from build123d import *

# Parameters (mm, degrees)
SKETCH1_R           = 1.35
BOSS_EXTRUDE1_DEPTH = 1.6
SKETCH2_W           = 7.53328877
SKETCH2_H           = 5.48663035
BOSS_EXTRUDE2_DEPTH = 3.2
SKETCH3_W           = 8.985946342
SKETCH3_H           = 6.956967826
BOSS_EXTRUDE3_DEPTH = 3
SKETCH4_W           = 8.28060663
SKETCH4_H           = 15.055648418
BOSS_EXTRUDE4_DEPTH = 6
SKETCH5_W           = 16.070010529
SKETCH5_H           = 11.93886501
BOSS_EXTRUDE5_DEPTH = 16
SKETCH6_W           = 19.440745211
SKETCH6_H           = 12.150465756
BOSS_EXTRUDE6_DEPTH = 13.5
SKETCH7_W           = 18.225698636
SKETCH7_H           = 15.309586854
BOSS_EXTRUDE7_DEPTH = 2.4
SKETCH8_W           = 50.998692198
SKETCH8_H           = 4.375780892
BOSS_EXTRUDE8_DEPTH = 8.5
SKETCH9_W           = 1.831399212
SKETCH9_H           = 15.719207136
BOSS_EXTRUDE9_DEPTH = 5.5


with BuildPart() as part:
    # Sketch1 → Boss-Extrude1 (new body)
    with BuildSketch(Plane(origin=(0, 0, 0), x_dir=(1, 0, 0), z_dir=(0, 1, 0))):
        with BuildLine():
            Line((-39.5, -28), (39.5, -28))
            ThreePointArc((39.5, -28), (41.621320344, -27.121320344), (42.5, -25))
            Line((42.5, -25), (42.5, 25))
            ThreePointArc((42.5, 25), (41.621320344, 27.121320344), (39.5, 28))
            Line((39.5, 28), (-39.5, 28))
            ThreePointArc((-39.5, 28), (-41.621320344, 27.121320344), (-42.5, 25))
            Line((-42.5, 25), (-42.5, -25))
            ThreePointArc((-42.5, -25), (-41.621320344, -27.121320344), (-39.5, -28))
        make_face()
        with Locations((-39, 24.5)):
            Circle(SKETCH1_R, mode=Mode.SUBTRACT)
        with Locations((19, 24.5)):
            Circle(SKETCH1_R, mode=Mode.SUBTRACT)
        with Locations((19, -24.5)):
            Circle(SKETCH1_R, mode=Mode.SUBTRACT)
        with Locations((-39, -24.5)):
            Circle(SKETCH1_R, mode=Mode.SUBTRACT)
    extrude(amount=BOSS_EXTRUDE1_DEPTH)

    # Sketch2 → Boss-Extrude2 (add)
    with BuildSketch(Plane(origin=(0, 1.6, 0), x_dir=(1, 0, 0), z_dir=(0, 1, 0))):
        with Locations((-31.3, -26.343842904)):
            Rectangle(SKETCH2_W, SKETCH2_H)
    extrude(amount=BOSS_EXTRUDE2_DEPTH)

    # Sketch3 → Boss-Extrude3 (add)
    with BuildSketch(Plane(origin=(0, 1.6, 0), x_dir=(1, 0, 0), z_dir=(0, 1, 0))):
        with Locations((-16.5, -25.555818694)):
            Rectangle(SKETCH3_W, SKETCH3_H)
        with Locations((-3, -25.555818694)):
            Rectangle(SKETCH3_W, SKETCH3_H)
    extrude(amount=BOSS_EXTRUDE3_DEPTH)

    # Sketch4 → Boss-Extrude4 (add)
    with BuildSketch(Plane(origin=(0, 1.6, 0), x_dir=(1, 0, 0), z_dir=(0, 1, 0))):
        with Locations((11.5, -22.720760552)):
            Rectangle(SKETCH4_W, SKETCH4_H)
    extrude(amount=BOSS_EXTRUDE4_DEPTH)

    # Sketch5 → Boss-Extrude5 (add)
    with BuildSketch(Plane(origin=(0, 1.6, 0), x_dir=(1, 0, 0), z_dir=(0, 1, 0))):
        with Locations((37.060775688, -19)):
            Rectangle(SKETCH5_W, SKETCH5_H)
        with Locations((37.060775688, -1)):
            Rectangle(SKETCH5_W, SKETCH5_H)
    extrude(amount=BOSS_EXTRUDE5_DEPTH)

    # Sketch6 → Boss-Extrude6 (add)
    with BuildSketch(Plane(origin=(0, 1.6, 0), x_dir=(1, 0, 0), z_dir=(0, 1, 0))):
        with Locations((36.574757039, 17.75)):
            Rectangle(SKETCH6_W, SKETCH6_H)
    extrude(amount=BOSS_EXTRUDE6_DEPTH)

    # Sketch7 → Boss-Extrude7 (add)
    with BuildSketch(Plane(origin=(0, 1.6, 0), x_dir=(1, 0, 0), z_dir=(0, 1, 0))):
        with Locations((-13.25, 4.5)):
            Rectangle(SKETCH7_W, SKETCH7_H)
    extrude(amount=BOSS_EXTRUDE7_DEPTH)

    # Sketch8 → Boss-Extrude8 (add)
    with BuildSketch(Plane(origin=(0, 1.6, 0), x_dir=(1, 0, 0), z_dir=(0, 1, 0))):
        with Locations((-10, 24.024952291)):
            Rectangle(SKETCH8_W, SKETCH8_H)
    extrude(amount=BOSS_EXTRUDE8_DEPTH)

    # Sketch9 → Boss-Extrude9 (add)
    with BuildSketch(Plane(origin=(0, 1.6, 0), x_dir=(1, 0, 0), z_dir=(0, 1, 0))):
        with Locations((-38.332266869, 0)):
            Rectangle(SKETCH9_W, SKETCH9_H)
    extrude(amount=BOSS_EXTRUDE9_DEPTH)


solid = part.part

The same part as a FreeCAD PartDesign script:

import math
import FreeCAD as App
import Part
import Sketcher

V = App.Vector

doc = App.newDocument("Part")
params = doc.addObject("Spreadsheet::Sheet", "Params")
for row, (alias, value) in enumerate([
    ("sketch1_radius", "3 mm"),
    ("sketch1_diameter", "2.7 mm"),
    ("sketch1_width", "79 mm"),
    ("sketch1_height", "50 mm"),
    ("pad1_length", "1.6 mm"),
    ("pad2_length", "3.2 mm"),
    ("pad3_length", "3 mm"),
    ("pad4_length", "6 mm"),
    ("pad5_length", "16 mm"),
    ("pad6_length", "13.5 mm"),
    ("pad7_length", "2.4 mm"),
    ("pad8_length", "8.5 mm"),
    ("pad9_length", "5.5 mm"),
], start=1):
    params.set(f"A{row}", alias)
    params.set(f"B{row}", "=" + value)
    params.setAlias(f"B{row}", alias)

body = doc.addObject("PartDesign::Body", "Body")

# Sketch on XZ plane
sketch1 = doc.addObject("Sketcher::SketchObject", "Sketch")
body.addObject(sketch1)
sketch1.AttachmentSupport = (doc.XZ_Plane, [""])
sketch1.MapMode = "FlatFace"
sketch1.addGeometry([
    Part.LineSegment(V(-39.5, 28, 0), V(39.5, 28, 0)),  # 0
    Part.ArcOfCircle(Part.Circle(V(39.5, 25, 0), V(0, 0, 1), 3), math.radians(0), math.radians(90)),  # 1
    Part.LineSegment(V(42.5, 25, 0), V(42.5, -25, 0)),  # 2
    Part.ArcOfCircle(Part.Circle(V(39.5, -25, 0), V(0, 0, 1), 3), math.radians(-90), math.radians(0)),  # 3
    Part.LineSegment(V(39.5, -28, 0), V(-39.5, -28, 0)),  # 4
    Part.ArcOfCircle(Part.Circle(V(-39.5, -25, 0), V(0, 0, 1), 3), math.radians(180), math.radians(270)),  # 5
    Part.LineSegment(V(-42.5, -25, 0), V(-42.5, 25, 0)),  # 6
    Part.ArcOfCircle(Part.Circle(V(-39.5, 25, 0), V(0, 0, 1), 3), math.radians(90), math.radians(180)),  # 7
    Part.Circle(V(-39, 24.5, 0), V(0, 0, 1), 1.4),  # 8
    Part.Circle(V(19, 24.5, 0), V(0, 0, 1), 1.4),  # 9
    Part.Circle(V(-39, -24.5, 0), V(0, 0, 1), 1.4),  # 10
    Part.Circle(V(19, -24.5, 0), V(0, 0, 1), 1.4),  # 11
], False)
sketch1.addConstraint([
    Sketcher.Constraint("Tangent", 0, 2, 1, 2),
    Sketcher.Constraint("Tangent", 1, 1, 2, 1),
    Sketcher.Constraint("Tangent", 2, 2, 3, 2),
    Sketcher.Constraint("Tangent", 3, 1, 4, 1),
    Sketcher.Constraint("Tangent", 4, 2, 5, 2),
    Sketcher.Constraint("Tangent", 5, 1, 6, 1),
    Sketcher.Constraint("Tangent", 6, 2, 7, 2),
    Sketcher.Constraint("Tangent", 7, 1, 0, 1),
    Sketcher.Constraint("Horizontal", 0),
    Sketcher.Constraint("Vertical", 2),
    Sketcher.Constraint("Horizontal", 4),
    Sketcher.Constraint("Vertical", 6),
    Sketcher.Constraint("Equal", 1, 3),
    Sketcher.Constraint("Equal", 3, 5),
    Sketcher.Constraint("Equal", 5, 7),
    Sketcher.Constraint("Equal", 8, 9),
    Sketcher.Constraint("Equal", 9, 10),
    Sketcher.Constraint("Equal", 10, 11),
    Sketcher.Constraint("Symmetric", 1, 3, 5, 3, -1, 1),
    Sketcher.Constraint("Symmetric", 8, 3, 10, 3, -1),
    Sketcher.Constraint("Symmetric", 9, 3, 11, 3, -1),
    Sketcher.Constraint("Horizontal", 8, 3, 9, 3),
    Sketcher.Constraint("Radius", 1, 3.0),
    Sketcher.Constraint("Diameter", 8, 2.7),
    Sketcher.Constraint("DistanceX", 0, 1, 0, 2, 79.0),
    Sketcher.Constraint("DistanceY", 2, 2, 2, 1, 50.0),
    Sketcher.Constraint("DistanceX", 8, 3, -1, 1, 39.0),
    Sketcher.Constraint("DistanceX", -1, 1, 9, 3, 19.0),
    Sketcher.Constraint("DistanceY", 10, 3, 8, 3, 49.0),
])
sketch1.setExpression("Constraints[22]", "Params.sketch1_radius")
sketch1.setExpression("Constraints[23]", "Params.sketch1_diameter")
sketch1.setExpression("Constraints[24]", "Params.sketch1_width")
sketch1.setExpression("Constraints[25]", "Params.sketch1_height")
pad1 = doc.addObject("PartDesign::Pad", "Pad")
body.addObject(pad1)
pad1.Profile = sketch1
pad1.setExpression("Length", "Params.pad1_length")
pad1.Reversed = True

# Sketch on XZ plane
sketch2 = doc.addObject("Sketcher::SketchObject", "Sketch001")
body.addObject(sketch2)
sketch2.AttachmentSupport = (doc.XZ_Plane, [""])
sketch2.MapMode = "FlatFace"
sketch2.AttachmentOffset = App.Placement(V(0, 0, -1.6), App.Rotation())
sketch2.addGeometry([
    Part.LineSegment(V(-35, 24, 0), V(-35, 29, 0)),
    Part.LineSegment(V(-35, 29, 0), V(-28, 29, 0)),
    Part.LineSegment(V(-28, 29, 0), V(-28, 24, 0)),
    Part.LineSegment(V(-28, 24, 0), V(-35, 24, 0)),
], False)
sketch2.addConstraint([
    Sketcher.Constraint("Coincident", 0, 2, 1, 1),
    Sketcher.Constraint("Coincident", 1, 2, 2, 1),
    Sketcher.Constraint("Coincident", 2, 2, 3, 1),
    Sketcher.Constraint("Coincident", 3, 2, 0, 1),
    Sketcher.Constraint("Vertical", 0),
    Sketcher.Constraint("Horizontal", 1),
    Sketcher.Constraint("Vertical", 2),
    Sketcher.Constraint("Horizontal", 3),
    Sketcher.Constraint("DistanceX", 1, 1, 1, 2, 7.533289),
    Sketcher.Constraint("DistanceY", 0, 1, 0, 2, 5.48663),
    Sketcher.Constraint("DistanceY", -1, 1, 0, 2, 29.087158),
    Sketcher.Constraint("DistanceX", 0, 2, -1, 1, 35.066644),
])
pad2 = doc.addObject("PartDesign::Pad", "Pad001")
body.addObject(pad2)
pad2.Profile = sketch2
pad2.setExpression("Length", "Params.pad2_length")
pad2.Reversed = True

# Sketch on XZ plane
sketch3 = doc.addObject("Sketcher::SketchObject", "Sketch002")
body.addObject(sketch3)
sketch3.AttachmentSupport = (doc.XZ_Plane, [""])
sketch3.MapMode = "FlatFace"
sketch3.AttachmentOffset = App.Placement(V(0, 0, -1.6), App.Rotation())
sketch3.addGeometry([
    Part.LineSegment(V(-21, 22, 0), V(-21, 29, 0)),  # 0
    Part.LineSegment(V(-21, 29, 0), V(-12, 29, 0)),  # 1
    Part.LineSegment(V(-12, 29, 0), V(-12, 22, 0)),  # 2
    Part.LineSegment(V(-12, 22, 0), V(-21, 22, 0)),  # 3
    Part.LineSegment(V(-7, 22, 0), V(-7, 29, 0)),  # 4
    Part.LineSegment(V(-7, 29, 0), V(1, 29, 0)),  # 5
    Part.LineSegment(V(1, 29, 0), V(1, 22, 0)),  # 6
    Part.LineSegment(V(1, 22, 0), V(-7, 22, 0)),  # 7
], False)
sketch3.addConstraint([
    Sketcher.Constraint("Coincident", 0, 2, 1, 1),
    Sketcher.Constraint("Coincident", 1, 2, 2, 1),
    Sketcher.Constraint("Coincident", 2, 2, 3, 1),
    Sketcher.Constraint("Coincident", 3, 2, 0, 1),
    Sketcher.Constraint("Coincident", 4, 2, 5, 1),
    Sketcher.Constraint("Coincident", 5, 2, 6, 1),
    Sketcher.Constraint("Coincident", 6, 2, 7, 1),
    Sketcher.Constraint("Coincident", 7, 2, 4, 1),
    Sketcher.Constraint("Vertical", 0),
    Sketcher.Constraint("Horizontal", 1),
    Sketcher.Constraint("Vertical", 2),
    Sketcher.Constraint("Horizontal", 3),
    Sketcher.Constraint("Vertical", 4),
    Sketcher.Constraint("Horizontal", 5),
    Sketcher.Constraint("Vertical", 6),
    Sketcher.Constraint("Horizontal", 7),
    Sketcher.Constraint("Horizontal", 1, 2, 4, 2),
    Sketcher.Constraint("Horizontal", 3, 2, 6, 2),
    Sketcher.Constraint("Equal", 3, 5),
    Sketcher.Constraint("DistanceX", 0, 2, 4, 2, 13.5),
    Sketcher.Constraint("DistanceX", 1, 1, 1, 2, 8.985946),
    Sketcher.Constraint("DistanceY", 0, 1, 0, 2, 6.956968),
    Sketcher.Constraint("DistanceX", 0, 2, -1, 1, 20.992973),
    Sketcher.Constraint("DistanceY", -1, 1, 0, 2, 29.034303),
])
pad3 = doc.addObject("PartDesign::Pad", "Pad002")
body.addObject(pad3)
pad3.Profile = sketch3
pad3.setExpression("Length", "Params.pad3_length")
pad3.Reversed = True

# Sketch on XZ plane
sketch4 = doc.addObject("Sketcher::SketchObject", "Sketch003")
body.addObject(sketch4)
sketch4.AttachmentSupport = (doc.XZ_Plane, [""])
sketch4.MapMode = "FlatFace"
sketch4.AttachmentOffset = App.Placement(V(0, 0, -1.6), App.Rotation())
sketch4.addGeometry([
    Part.LineSegment(V(7, 15, 0), V(7, 30, 0)),
    Part.LineSegment(V(7, 30, 0), V(16, 30, 0)),
    Part.LineSegment(V(16, 30, 0), V(16, 15, 0)),
    Part.LineSegment(V(16, 15, 0), V(7, 15, 0)),
], False)
sketch4.addConstraint([
    Sketcher.Constraint("Coincident", 0, 2, 1, 1),
    Sketcher.Constraint("Coincident", 1, 2, 2, 1),
    Sketcher.Constraint("Coincident", 2, 2, 3, 1),
    Sketcher.Constraint("Coincident", 3, 2, 0, 1),
    Sketcher.Constraint("Vertical", 0),
    Sketcher.Constraint("Horizontal", 1),
    Sketcher.Constraint("Vertical", 2),
    Sketcher.Constraint("Horizontal", 3),
    Sketcher.Constraint("DistanceY", 0, 1, 0, 2, 15.055648),
    Sketcher.Constraint("DistanceX", 1, 1, 1, 2, 8.280607),
    Sketcher.Constraint("DistanceX", -1, 1, 0, 2, 7.359697),
    Sketcher.Constraint("DistanceY", -1, 1, 0, 2, 30.248585),
])
pad4 = doc.addObject("PartDesign::Pad", "Pad003")
body.addObject(pad4)
pad4.Profile = sketch4
pad4.setExpression("Length", "Params.pad4_length")
pad4.Reversed = True

# Sketch on XZ plane
sketch5 = doc.addObject("Sketcher::SketchObject", "Sketch004")
body.addObject(sketch5)
sketch5.AttachmentSupport = (doc.XZ_Plane, [""])
sketch5.MapMode = "FlatFace"
sketch5.AttachmentOffset = App.Placement(V(0, 0, -1.6), App.Rotation())
sketch5.addGeometry([
    Part.LineSegment(V(29, 13, 0), V(29, 25, 0)),  # 0
    Part.LineSegment(V(29, 25, 0), V(45, 25, 0)),  # 1
    Part.LineSegment(V(45, 25, 0), V(45, 13, 0)),  # 2
    Part.LineSegment(V(45, 13, 0), V(29, 13, 0)),  # 3
    Part.LineSegment(V(29, -5, 0), V(29, 7, 0)),  # 4
    Part.LineSegment(V(29, 7, 0), V(45, 7, 0)),  # 5
    Part.LineSegment(V(45, 7, 0), V(45, -5, 0)),  # 6
    Part.LineSegment(V(45, -5, 0), V(29, -5, 0)),  # 7
], False)
sketch5.addConstraint([
    Sketcher.Constraint("Coincident", 0, 2, 1, 1),
    Sketcher.Constraint("Coincident", 1, 2, 2, 1),
    Sketcher.Constraint("Coincident", 2, 2, 3, 1),
    Sketcher.Constraint("Coincident", 3, 2, 0, 1),
    Sketcher.Constraint("Coincident", 4, 2, 5, 1),
    Sketcher.Constraint("Coincident", 5, 2, 6, 1),
    Sketcher.Constraint("Coincident", 6, 2, 7, 1),
    Sketcher.Constraint("Coincident", 7, 2, 4, 1),
    Sketcher.Constraint("Vertical", 0),
    Sketcher.Constraint("Horizontal", 1),
    Sketcher.Constraint("Vertical", 2),
    Sketcher.Constraint("Horizontal", 3),
    Sketcher.Constraint("Vertical", 4),
    Sketcher.Constraint("Horizontal", 5),
    Sketcher.Constraint("Vertical", 6),
    Sketcher.Constraint("Horizontal", 7),
    Sketcher.Constraint("Vertical", 3, 2, 4, 2),
    Sketcher.Constraint("Vertical", 2, 2, 5, 2),
    Sketcher.Constraint("Equal", 2, 4),
    Sketcher.Constraint("DistanceY", 4, 2, 0, 2, 18.0),
    Sketcher.Constraint("DistanceX", 1, 1, 1, 2, 16.070011),
    Sketcher.Constraint("DistanceY", 0, 1, 0, 2, 11.938865),
    Sketcher.Constraint("DistanceX", -1, 1, 0, 2, 29.02577),
    Sketcher.Constraint("DistanceY", -1, 1, 0, 2, 24.969433),
])
pad5 = doc.addObject("PartDesign::Pad", "Pad004")
body.addObject(pad5)
pad5.Profile = sketch5
pad5.setExpression("Length", "Params.pad5_length")
pad5.Reversed = True

# Sketch on XZ plane
sketch6 = doc.addObject("Sketcher::SketchObject", "Sketch005")
body.addObject(sketch6)
sketch6.AttachmentSupport = (doc.XZ_Plane, [""])
sketch6.MapMode = "FlatFace"
sketch6.AttachmentOffset = App.Placement(V(0, 0, -1.6), App.Rotation())
sketch6.addGeometry([
    Part.LineSegment(V(27, -24, 0), V(27, -12, 0)),
    Part.LineSegment(V(27, -12, 0), V(46, -12, 0)),
    Part.LineSegment(V(46, -12, 0), V(46, -24, 0)),
    Part.LineSegment(V(46, -24, 0), V(27, -24, 0)),
], False)
sketch6.addConstraint([
    Sketcher.Constraint("Coincident", 0, 2, 1, 1),
    Sketcher.Constraint("Coincident", 1, 2, 2, 1),
    Sketcher.Constraint("Coincident", 2, 2, 3, 1),
    Sketcher.Constraint("Coincident", 3, 2, 0, 1),
    Sketcher.Constraint("Vertical", 0),
    Sketcher.Constraint("Horizontal", 1),
    Sketcher.Constraint("Vertical", 2),
    Sketcher.Constraint("Horizontal", 3),
    Sketcher.Constraint("DistanceX", 1, 1, 1, 2, 19.440745),
    Sketcher.Constraint("DistanceY", 0, 1, 0, 2, 12.150466),
    Sketcher.Constraint("DistanceX", -1, 1, 1, 2, 46.29513),
    Sketcher.Constraint("DistanceY", 0, 2, -1, 1, 11.674767),
])
pad6 = doc.addObject("PartDesign::Pad", "Pad005")
body.addObject(pad6)
pad6.Profile = sketch6
pad6.setExpression("Length", "Params.pad6_length")
pad6.Reversed = True

# Sketch on XZ plane
sketch7 = doc.addObject("Sketcher::SketchObject", "Sketch006")
body.addObject(sketch7)
sketch7.AttachmentSupport = (doc.XZ_Plane, [""])
sketch7.MapMode = "FlatFace"
sketch7.AttachmentOffset = App.Placement(V(0, 0, -1.6), App.Rotation())
sketch7.addGeometry([
    Part.LineSegment(V(-22, -12, 0), V(-22, 3, 0)),
    Part.LineSegment(V(-22, 3, 0), V(-4, 3, 0)),
    Part.LineSegment(V(-4, 3, 0), V(-4, -12, 0)),
    Part.LineSegment(V(-4, -12, 0), V(-22, -12, 0)),
], False)
sketch7.addConstraint([
    Sketcher.Constraint("Coincident", 0, 2, 1, 1),
    Sketcher.Constraint("Coincident", 1, 2, 2, 1),
    Sketcher.Constraint("Coincident", 2, 2, 3, 1),
    Sketcher.Constraint("Coincident", 3, 2, 0, 1),
    Sketcher.Constraint("Vertical", 0),
    Sketcher.Constraint("Horizontal", 1),
    Sketcher.Constraint("Vertical", 2),
    Sketcher.Constraint("Horizontal", 3),
    Sketcher.Constraint("DistanceX", 1, 1, 1, 2, 18.225699),
    Sketcher.Constraint("DistanceY", 0, 1, 0, 2, 15.309587),
    Sketcher.Constraint("DistanceX", 0, 2, -1, 1, 22.362849),
    Sketcher.Constraint("DistanceY", -1, 1, 0, 2, 3.154793),
])
pad7 = doc.addObject("PartDesign::Pad", "Pad006")
body.addObject(pad7)
pad7.Profile = sketch7
pad7.setExpression("Length", "Params.pad7_length")
pad7.Reversed = True

# Sketch on XZ plane
sketch8 = doc.addObject("Sketcher::SketchObject", "Sketch007")
body.addObject(sketch8)
sketch8.AttachmentSupport = (doc.XZ_Plane, [""])
sketch8.MapMode = "FlatFace"
sketch8.AttachmentOffset = App.Placement(V(0, 0, -1.6), App.Rotation())
sketch8.addGeometry([
    Part.LineSegment(V(-35.5, -26.2, 0), V(-35.5, -21.8, 0)),
    Part.LineSegment(V(-35.5, -21.8, 0), V(15.5, -21.8, 0)),
    Part.LineSegment(V(15.5, -21.8, 0), V(15.5, -26.2, 0)),
    Part.LineSegment(V(15.5, -26.2, 0), V(-35.5, -26.2, 0)),
], False)
sketch8.addConstraint([
    Sketcher.Constraint("Coincident", 0, 2, 1, 1),
    Sketcher.Constraint("Coincident", 1, 2, 2, 1),
    Sketcher.Constraint("Coincident", 2, 2, 3, 1),
    Sketcher.Constraint("Coincident", 3, 2, 0, 1),
    Sketcher.Constraint("Vertical", 0),
    Sketcher.Constraint("Horizontal", 1),
    Sketcher.Constraint("Vertical", 2),
    Sketcher.Constraint("Horizontal", 3),
    Sketcher.Constraint("DistanceY", 0, 1, 0, 2, 4.375781),
    Sketcher.Constraint("DistanceX", 1, 1, 1, 2, 50.998692),
    Sketcher.Constraint("DistanceY", 0, 2, -1, 1, 21.837062),
    Sketcher.Constraint("DistanceX", 0, 2, -1, 1, 35.499346),
])
pad8 = doc.addObject("PartDesign::Pad", "Pad007")
body.addObject(pad8)
pad8.Profile = sketch8
pad8.setExpression("Length", "Params.pad8_length")
pad8.Reversed = True

# Sketch on XZ plane
sketch9 = doc.addObject("Sketcher::SketchObject", "Sketch008")
body.addObject(sketch9)
sketch9.AttachmentSupport = (doc.XZ_Plane, [""])
sketch9.MapMode = "FlatFace"
sketch9.AttachmentOffset = App.Placement(V(0, 0, -1.6), App.Rotation())
sketch9.addGeometry([
    Part.LineSegment(V(-39.2, -7.9, 0), V(-39.2, 7.9, 0)),
    Part.LineSegment(V(-39.2, 7.9, 0), V(-37.4, 7.9, 0)),
    Part.LineSegment(V(-37.4, 7.9, 0), V(-37.4, -7.9, 0)),
    Part.LineSegment(V(-37.4, -7.9, 0), V(-39.2, -7.9, 0)),
], False)
sketch9.addConstraint([
    Sketcher.Constraint("Coincident", 0, 2, 1, 1),
    Sketcher.Constraint("Coincident", 1, 2, 2, 1),
    Sketcher.Constraint("Coincident", 2, 2, 3, 1),
    Sketcher.Constraint("Coincident", 3, 2, 0, 1),
    Sketcher.Constraint("Vertical", 0),
    Sketcher.Constraint("Horizontal", 1),
    Sketcher.Constraint("Vertical", 2),
    Sketcher.Constraint("Horizontal", 3),
    Sketcher.Constraint("DistanceX", 1, 1, 1, 2, 1.831399),
    Sketcher.Constraint("DistanceY", 0, 1, 0, 2, 15.719207),
    Sketcher.Constraint("DistanceX", 0, 2, -1, 1, 39.247966),
    Sketcher.Constraint("DistanceY", -1, 1, 0, 2, 7.859604),
])
pad9 = doc.addObject("PartDesign::Pad", "Pad008")
body.addObject(pad9)
pad9.Profile = sketch9
pad9.setExpression("Length", "Params.pad9_length")
pad9.Reversed = True

doc.recompute()
